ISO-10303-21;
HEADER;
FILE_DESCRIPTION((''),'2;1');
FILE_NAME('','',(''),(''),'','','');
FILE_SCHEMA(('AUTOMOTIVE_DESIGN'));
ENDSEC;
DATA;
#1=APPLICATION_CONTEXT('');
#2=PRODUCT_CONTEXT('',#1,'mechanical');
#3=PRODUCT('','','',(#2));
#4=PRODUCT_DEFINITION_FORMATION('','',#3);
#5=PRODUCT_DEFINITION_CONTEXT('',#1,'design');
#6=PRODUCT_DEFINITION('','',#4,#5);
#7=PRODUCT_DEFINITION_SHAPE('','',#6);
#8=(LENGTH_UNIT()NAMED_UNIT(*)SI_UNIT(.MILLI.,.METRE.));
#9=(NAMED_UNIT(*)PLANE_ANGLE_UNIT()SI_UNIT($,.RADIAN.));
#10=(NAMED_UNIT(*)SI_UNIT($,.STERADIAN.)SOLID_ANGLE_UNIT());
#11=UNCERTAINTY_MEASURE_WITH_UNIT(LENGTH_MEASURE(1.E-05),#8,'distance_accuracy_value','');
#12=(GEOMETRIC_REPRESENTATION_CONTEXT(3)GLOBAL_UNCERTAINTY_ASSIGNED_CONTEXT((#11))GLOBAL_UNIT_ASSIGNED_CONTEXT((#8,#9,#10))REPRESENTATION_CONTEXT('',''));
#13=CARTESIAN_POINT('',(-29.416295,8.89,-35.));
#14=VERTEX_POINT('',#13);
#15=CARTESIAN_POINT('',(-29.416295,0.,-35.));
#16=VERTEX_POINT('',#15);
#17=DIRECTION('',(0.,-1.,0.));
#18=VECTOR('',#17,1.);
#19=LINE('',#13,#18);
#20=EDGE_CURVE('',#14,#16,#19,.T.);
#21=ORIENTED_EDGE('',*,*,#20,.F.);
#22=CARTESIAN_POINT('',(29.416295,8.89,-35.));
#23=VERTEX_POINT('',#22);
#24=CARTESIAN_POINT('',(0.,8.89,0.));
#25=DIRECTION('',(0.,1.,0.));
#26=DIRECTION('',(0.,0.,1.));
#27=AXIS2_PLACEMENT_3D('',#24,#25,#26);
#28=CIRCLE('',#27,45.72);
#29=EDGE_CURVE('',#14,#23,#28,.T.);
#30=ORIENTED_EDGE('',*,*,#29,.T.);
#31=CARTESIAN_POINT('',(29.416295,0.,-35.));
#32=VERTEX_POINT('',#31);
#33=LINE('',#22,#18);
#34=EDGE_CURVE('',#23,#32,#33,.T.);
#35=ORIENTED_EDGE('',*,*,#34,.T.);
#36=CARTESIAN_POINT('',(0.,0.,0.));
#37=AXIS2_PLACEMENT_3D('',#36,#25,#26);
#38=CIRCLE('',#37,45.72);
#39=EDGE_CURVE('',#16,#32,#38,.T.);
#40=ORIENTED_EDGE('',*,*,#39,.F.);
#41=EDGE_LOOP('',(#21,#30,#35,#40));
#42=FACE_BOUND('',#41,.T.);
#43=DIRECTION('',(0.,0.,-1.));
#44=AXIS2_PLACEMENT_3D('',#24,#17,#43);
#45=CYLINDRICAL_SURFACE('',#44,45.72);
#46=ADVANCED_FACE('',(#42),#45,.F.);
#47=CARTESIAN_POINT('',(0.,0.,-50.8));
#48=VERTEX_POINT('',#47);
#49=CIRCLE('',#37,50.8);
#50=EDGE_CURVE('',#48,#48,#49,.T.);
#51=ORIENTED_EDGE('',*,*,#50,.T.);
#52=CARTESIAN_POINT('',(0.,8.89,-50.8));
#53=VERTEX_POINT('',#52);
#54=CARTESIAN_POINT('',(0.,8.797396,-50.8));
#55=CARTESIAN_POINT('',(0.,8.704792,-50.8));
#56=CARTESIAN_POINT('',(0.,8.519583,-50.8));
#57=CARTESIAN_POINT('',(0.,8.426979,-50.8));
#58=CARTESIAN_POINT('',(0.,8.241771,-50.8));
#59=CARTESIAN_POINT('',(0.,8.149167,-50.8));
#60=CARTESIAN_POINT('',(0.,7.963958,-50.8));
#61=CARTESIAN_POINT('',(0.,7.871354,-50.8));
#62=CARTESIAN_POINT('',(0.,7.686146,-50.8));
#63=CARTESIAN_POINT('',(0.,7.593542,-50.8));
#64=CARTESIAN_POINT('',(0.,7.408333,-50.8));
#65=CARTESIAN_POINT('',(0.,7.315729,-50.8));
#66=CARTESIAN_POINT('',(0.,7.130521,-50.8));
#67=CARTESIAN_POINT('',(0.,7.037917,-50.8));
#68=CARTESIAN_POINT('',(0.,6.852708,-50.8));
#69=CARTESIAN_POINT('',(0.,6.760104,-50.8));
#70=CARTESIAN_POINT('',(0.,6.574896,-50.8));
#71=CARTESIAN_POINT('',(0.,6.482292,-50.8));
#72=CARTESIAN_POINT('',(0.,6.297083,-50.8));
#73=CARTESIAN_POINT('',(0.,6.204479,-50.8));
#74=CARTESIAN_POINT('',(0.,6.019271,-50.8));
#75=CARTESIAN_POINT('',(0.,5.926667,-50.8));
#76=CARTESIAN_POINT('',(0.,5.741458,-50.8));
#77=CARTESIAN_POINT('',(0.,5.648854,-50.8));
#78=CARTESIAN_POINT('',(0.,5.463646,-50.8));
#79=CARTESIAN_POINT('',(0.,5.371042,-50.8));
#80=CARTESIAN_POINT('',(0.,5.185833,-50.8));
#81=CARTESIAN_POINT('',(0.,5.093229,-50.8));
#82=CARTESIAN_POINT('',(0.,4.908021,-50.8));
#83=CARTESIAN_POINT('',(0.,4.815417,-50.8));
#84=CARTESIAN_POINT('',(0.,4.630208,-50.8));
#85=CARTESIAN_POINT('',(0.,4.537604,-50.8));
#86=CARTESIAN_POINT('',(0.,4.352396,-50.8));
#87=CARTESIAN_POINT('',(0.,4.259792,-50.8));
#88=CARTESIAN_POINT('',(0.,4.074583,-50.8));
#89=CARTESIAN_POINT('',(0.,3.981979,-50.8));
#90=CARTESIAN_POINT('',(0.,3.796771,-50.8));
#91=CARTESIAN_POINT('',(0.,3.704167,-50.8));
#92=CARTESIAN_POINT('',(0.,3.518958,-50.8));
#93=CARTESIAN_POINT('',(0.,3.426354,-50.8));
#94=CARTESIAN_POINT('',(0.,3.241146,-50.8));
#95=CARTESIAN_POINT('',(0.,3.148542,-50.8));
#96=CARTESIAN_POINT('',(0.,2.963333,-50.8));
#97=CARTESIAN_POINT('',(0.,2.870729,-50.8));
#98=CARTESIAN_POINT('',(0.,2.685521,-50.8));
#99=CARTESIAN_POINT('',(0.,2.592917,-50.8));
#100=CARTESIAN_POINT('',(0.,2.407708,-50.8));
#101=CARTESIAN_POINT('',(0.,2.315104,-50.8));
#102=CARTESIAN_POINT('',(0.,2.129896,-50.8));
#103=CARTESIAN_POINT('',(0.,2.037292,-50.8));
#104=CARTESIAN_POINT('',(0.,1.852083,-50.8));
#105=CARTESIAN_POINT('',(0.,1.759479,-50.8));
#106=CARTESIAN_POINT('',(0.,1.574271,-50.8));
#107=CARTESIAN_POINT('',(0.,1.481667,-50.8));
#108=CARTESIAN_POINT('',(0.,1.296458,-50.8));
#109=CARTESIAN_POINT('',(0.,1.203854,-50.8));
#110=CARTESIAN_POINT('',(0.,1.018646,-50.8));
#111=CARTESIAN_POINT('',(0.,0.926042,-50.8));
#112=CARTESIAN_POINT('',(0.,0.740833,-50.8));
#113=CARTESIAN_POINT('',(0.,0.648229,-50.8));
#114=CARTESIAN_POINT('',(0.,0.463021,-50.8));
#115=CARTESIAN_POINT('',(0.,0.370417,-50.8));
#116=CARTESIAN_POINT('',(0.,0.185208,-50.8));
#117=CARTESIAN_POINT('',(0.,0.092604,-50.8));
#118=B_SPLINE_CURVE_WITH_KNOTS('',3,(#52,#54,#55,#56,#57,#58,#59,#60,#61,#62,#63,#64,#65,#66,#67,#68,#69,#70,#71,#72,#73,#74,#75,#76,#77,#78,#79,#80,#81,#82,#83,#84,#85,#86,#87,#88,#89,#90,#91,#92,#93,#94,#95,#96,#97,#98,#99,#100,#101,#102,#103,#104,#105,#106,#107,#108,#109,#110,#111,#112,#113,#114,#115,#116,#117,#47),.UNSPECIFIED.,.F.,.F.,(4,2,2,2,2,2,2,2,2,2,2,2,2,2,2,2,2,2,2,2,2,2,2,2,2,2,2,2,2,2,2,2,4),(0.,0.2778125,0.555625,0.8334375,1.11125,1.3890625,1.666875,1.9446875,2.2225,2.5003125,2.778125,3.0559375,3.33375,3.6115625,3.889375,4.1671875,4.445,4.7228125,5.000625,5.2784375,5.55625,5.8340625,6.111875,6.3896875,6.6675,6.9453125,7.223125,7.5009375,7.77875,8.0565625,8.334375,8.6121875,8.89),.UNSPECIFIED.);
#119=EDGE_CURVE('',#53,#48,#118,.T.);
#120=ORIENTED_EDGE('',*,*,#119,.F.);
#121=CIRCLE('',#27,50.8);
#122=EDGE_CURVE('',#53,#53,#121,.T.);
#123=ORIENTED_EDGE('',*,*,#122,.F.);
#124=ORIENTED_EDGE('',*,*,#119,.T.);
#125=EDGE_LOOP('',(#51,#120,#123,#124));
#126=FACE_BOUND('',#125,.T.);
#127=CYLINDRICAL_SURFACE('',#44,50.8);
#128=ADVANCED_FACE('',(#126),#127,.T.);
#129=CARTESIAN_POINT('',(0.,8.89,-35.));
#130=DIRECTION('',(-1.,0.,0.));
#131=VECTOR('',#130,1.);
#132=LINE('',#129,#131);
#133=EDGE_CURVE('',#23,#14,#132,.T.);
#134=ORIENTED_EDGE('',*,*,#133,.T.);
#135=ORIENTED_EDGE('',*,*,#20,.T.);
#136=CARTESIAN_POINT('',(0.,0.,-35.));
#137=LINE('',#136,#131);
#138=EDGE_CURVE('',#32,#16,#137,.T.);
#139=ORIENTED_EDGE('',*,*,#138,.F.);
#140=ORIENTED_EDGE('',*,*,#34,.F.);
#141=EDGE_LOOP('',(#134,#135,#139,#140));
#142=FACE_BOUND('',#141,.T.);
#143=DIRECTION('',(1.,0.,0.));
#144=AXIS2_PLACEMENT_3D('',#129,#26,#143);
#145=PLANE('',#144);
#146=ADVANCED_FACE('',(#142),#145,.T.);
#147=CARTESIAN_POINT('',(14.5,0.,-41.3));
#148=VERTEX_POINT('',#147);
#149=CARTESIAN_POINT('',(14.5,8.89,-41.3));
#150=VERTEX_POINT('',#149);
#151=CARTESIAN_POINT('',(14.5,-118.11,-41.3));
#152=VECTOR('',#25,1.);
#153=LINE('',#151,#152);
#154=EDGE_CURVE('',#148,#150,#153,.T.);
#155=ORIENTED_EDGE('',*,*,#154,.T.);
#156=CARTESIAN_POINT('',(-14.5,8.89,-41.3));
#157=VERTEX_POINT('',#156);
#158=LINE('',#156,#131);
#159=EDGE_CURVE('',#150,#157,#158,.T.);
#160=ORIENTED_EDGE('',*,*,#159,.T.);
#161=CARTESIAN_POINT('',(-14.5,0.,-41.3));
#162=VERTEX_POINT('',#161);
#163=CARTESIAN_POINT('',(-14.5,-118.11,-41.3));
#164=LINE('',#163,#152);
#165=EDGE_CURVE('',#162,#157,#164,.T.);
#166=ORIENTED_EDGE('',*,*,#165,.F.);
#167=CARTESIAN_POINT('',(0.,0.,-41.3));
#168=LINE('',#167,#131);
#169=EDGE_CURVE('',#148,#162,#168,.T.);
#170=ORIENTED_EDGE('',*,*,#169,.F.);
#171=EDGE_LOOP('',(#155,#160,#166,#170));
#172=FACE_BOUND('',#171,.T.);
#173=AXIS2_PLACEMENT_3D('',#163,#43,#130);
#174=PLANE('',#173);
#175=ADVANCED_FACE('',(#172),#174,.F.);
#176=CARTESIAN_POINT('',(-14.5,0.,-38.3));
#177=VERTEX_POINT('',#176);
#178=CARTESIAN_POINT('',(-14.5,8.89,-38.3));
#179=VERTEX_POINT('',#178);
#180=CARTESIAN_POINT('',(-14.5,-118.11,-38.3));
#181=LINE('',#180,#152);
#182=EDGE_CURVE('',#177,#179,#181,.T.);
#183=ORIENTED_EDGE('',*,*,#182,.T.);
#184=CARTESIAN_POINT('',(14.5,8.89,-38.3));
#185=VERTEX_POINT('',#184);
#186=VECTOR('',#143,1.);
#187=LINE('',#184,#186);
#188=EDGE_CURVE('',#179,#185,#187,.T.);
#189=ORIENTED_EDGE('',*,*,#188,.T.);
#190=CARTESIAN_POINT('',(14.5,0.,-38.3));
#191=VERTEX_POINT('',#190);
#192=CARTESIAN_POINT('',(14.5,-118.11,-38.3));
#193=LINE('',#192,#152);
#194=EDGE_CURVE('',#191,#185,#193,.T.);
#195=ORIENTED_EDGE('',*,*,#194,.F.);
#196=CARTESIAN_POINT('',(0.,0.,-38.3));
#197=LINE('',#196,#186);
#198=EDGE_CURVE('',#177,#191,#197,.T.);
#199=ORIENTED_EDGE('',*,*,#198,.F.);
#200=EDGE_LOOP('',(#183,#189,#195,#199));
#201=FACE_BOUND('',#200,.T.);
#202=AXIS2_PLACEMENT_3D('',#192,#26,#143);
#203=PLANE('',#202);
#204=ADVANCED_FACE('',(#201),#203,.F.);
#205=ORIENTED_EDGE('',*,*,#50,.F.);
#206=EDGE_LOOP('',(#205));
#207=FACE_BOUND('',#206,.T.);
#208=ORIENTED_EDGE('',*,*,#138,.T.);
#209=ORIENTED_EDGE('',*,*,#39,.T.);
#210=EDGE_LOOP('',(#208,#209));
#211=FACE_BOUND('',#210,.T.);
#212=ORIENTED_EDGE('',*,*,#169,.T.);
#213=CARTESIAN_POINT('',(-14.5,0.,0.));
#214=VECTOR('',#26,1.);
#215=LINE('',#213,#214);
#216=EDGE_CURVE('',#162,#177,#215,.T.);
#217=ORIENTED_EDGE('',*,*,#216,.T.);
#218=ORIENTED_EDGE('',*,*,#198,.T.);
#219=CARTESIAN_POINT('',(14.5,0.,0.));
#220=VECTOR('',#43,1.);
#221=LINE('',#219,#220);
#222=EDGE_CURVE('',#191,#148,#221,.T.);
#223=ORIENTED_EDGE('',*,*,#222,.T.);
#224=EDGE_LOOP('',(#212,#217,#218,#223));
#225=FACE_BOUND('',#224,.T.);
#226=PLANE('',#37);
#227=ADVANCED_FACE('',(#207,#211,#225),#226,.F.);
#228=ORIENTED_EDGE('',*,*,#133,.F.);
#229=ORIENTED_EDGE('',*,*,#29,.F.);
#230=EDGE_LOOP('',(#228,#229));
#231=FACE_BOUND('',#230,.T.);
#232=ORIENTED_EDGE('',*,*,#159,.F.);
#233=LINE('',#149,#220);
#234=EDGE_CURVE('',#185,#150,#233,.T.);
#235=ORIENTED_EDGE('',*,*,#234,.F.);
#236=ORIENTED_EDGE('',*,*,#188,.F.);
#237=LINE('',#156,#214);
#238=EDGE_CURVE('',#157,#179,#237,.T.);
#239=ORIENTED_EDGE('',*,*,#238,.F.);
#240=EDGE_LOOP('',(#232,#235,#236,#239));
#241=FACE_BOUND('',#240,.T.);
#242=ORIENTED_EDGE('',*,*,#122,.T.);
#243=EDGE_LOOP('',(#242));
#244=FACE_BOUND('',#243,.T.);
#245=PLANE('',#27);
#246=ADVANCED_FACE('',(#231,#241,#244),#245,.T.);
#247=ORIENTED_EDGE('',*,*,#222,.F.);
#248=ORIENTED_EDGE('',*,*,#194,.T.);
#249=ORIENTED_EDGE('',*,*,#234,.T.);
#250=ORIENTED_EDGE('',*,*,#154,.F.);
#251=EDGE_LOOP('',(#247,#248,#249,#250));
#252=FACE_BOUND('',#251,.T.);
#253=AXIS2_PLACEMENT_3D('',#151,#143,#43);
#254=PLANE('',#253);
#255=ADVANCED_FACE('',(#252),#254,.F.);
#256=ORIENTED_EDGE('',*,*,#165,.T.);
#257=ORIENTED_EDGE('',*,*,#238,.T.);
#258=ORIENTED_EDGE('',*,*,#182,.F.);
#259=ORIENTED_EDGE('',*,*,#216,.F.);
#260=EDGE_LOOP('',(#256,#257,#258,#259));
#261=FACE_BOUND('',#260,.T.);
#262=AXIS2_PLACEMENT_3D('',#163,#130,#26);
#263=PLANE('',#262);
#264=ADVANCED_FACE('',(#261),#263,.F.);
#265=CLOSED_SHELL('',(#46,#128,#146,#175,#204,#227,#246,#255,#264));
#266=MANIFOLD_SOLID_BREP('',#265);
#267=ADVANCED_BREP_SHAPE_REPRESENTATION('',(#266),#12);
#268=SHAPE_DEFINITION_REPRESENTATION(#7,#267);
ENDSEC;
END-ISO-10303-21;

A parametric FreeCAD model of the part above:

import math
import FreeCAD as App
import Part
import Sketcher
from FreeCAD import Vector
Q = App.Units.Quantity

doc = App.newDocument("Part")
body = doc.addObject("PartDesign::Body", "Body")

sketch1 = body.newObject("Sketcher::SketchObject", "Sketch")
sketch1.AttachmentSupport = (doc.getObject("XZ_Plane"), [""])
sketch1.MapMode = "FlatFace"
sketch1.addGeometry(Part.Circle(Vector(0, 0, 0), Vector(0, 0, 1), 51), False)
sketch1.addGeometry(Part.ArcOfCircle(Part.Circle(Vector(0, 0, 0), Vector(0, 0, 1), 46), math.radians(-50), math.radians(230)), False)
sketch1.addGeometry(Part.LineSegment(Vector(-29, -35, 0), Vector(29, -35, 0)), False)
sketch1.addConstraint(Sketcher.Constraint("Coincident", 1, 1, 2, 2))
sketch1.addConstraint(Sketcher.Constraint("Coincident", 2, 1, 1, 2))
sketch1.addConstraint(Sketcher.Constraint("Horizontal", 2))
sketch1.addConstraint(Sketcher.Constraint("Coincident", 0, 3, -1, 1))
sketch1.addConstraint(Sketcher.Constraint("Coincident", 1, 3, -1, 1))
sketch1.addConstraint(Sketcher.Constraint("Diameter", 0, Q("4 in")))
sketch1.addConstraint(Sketcher.Constraint("Radius", 1, Q("1.8 in")))
sketch1.addConstraint(Sketcher.Constraint("DistanceX", 2, 1, 2, 2, Q("58.83259 mm")))
pad1 = body.newObject("PartDesign::Pad", "Pad")
pad1.Profile = sketch1
pad1.Length = Q("0.35 in")
pad1.Reversed = True

sketch2 = body.newObject("Sketcher::SketchObject", "Sketch001")
sketch2.AttachmentSupport = (doc.getObject("XZ_Plane"), [""])
sketch2.MapMode = "FlatFace"
sketch2.AttachmentOffset = App.Placement(Vector(0, 0, -0.35 * 25.4), App.Rotation())
sketch2.addGeometry(Part.LineSegment(Vector(-14.5, -41.3, 0), Vector(-14.5, -38.3, 0)), False)
sketch2.addGeometry(Part.LineSegment(Vector(-14.5, -38.3, 0), Vector(14.5, -38.3, 0)), False)
sketch2.addGeometry(Part.LineSegment(Vector(14.5, -38.3, 0), Vector(14.5, -41.3, 0)), False)
sketch2.addGeometry(Part.LineSegment(Vector(14.5, -41.3, 0), Vector(-14.5, -41.3, 0)), False)
sketch2.addConstraint(Sketcher.Constraint("Coincident", 0, 2, 1, 1))
sketch2.addConstraint(Sketcher.Constraint("Coincident", 1, 2, 2, 1))
sketch2.addConstraint(Sketcher.Constraint("Coincident", 2, 2, 3, 1))
sketch2.addConstraint(Sketcher.Constraint("Coincident", 3, 2, 0, 1))
sketch2.addConstraint(Sketcher.Constraint("Vertical", 0))
sketch2.addConstraint(Sketcher.Constraint("Horizontal", 1))
sketch2.addConstraint(Sketcher.Constraint("Vertical", 2))
sketch2.addConstraint(Sketcher.Constraint("Horizontal", 3))
sketch2.addConstraint(Sketcher.Constraint("DistanceX", 1, 1, 1, 2, Q("29 mm")))
sketch2.addConstraint(Sketcher.Constraint("DistanceY", 0, 1, 0, 2, Q("3 mm")))
sketch2.addConstraint(Sketcher.Constraint("DistanceX", 0, 2, -1, 1, Q("14.5 mm")))
sketch2.addConstraint(Sketcher.Constraint("DistanceY", 0, 2, -1, 1, Q("38.3 mm")))
pocket1 = body.newObject("PartDesign::Pocket", "Pocket")
pocket1.Profile = sketch2
pocket1.Length = Q("5 in")
pocket1.Reversed = True

doc.recompute()
